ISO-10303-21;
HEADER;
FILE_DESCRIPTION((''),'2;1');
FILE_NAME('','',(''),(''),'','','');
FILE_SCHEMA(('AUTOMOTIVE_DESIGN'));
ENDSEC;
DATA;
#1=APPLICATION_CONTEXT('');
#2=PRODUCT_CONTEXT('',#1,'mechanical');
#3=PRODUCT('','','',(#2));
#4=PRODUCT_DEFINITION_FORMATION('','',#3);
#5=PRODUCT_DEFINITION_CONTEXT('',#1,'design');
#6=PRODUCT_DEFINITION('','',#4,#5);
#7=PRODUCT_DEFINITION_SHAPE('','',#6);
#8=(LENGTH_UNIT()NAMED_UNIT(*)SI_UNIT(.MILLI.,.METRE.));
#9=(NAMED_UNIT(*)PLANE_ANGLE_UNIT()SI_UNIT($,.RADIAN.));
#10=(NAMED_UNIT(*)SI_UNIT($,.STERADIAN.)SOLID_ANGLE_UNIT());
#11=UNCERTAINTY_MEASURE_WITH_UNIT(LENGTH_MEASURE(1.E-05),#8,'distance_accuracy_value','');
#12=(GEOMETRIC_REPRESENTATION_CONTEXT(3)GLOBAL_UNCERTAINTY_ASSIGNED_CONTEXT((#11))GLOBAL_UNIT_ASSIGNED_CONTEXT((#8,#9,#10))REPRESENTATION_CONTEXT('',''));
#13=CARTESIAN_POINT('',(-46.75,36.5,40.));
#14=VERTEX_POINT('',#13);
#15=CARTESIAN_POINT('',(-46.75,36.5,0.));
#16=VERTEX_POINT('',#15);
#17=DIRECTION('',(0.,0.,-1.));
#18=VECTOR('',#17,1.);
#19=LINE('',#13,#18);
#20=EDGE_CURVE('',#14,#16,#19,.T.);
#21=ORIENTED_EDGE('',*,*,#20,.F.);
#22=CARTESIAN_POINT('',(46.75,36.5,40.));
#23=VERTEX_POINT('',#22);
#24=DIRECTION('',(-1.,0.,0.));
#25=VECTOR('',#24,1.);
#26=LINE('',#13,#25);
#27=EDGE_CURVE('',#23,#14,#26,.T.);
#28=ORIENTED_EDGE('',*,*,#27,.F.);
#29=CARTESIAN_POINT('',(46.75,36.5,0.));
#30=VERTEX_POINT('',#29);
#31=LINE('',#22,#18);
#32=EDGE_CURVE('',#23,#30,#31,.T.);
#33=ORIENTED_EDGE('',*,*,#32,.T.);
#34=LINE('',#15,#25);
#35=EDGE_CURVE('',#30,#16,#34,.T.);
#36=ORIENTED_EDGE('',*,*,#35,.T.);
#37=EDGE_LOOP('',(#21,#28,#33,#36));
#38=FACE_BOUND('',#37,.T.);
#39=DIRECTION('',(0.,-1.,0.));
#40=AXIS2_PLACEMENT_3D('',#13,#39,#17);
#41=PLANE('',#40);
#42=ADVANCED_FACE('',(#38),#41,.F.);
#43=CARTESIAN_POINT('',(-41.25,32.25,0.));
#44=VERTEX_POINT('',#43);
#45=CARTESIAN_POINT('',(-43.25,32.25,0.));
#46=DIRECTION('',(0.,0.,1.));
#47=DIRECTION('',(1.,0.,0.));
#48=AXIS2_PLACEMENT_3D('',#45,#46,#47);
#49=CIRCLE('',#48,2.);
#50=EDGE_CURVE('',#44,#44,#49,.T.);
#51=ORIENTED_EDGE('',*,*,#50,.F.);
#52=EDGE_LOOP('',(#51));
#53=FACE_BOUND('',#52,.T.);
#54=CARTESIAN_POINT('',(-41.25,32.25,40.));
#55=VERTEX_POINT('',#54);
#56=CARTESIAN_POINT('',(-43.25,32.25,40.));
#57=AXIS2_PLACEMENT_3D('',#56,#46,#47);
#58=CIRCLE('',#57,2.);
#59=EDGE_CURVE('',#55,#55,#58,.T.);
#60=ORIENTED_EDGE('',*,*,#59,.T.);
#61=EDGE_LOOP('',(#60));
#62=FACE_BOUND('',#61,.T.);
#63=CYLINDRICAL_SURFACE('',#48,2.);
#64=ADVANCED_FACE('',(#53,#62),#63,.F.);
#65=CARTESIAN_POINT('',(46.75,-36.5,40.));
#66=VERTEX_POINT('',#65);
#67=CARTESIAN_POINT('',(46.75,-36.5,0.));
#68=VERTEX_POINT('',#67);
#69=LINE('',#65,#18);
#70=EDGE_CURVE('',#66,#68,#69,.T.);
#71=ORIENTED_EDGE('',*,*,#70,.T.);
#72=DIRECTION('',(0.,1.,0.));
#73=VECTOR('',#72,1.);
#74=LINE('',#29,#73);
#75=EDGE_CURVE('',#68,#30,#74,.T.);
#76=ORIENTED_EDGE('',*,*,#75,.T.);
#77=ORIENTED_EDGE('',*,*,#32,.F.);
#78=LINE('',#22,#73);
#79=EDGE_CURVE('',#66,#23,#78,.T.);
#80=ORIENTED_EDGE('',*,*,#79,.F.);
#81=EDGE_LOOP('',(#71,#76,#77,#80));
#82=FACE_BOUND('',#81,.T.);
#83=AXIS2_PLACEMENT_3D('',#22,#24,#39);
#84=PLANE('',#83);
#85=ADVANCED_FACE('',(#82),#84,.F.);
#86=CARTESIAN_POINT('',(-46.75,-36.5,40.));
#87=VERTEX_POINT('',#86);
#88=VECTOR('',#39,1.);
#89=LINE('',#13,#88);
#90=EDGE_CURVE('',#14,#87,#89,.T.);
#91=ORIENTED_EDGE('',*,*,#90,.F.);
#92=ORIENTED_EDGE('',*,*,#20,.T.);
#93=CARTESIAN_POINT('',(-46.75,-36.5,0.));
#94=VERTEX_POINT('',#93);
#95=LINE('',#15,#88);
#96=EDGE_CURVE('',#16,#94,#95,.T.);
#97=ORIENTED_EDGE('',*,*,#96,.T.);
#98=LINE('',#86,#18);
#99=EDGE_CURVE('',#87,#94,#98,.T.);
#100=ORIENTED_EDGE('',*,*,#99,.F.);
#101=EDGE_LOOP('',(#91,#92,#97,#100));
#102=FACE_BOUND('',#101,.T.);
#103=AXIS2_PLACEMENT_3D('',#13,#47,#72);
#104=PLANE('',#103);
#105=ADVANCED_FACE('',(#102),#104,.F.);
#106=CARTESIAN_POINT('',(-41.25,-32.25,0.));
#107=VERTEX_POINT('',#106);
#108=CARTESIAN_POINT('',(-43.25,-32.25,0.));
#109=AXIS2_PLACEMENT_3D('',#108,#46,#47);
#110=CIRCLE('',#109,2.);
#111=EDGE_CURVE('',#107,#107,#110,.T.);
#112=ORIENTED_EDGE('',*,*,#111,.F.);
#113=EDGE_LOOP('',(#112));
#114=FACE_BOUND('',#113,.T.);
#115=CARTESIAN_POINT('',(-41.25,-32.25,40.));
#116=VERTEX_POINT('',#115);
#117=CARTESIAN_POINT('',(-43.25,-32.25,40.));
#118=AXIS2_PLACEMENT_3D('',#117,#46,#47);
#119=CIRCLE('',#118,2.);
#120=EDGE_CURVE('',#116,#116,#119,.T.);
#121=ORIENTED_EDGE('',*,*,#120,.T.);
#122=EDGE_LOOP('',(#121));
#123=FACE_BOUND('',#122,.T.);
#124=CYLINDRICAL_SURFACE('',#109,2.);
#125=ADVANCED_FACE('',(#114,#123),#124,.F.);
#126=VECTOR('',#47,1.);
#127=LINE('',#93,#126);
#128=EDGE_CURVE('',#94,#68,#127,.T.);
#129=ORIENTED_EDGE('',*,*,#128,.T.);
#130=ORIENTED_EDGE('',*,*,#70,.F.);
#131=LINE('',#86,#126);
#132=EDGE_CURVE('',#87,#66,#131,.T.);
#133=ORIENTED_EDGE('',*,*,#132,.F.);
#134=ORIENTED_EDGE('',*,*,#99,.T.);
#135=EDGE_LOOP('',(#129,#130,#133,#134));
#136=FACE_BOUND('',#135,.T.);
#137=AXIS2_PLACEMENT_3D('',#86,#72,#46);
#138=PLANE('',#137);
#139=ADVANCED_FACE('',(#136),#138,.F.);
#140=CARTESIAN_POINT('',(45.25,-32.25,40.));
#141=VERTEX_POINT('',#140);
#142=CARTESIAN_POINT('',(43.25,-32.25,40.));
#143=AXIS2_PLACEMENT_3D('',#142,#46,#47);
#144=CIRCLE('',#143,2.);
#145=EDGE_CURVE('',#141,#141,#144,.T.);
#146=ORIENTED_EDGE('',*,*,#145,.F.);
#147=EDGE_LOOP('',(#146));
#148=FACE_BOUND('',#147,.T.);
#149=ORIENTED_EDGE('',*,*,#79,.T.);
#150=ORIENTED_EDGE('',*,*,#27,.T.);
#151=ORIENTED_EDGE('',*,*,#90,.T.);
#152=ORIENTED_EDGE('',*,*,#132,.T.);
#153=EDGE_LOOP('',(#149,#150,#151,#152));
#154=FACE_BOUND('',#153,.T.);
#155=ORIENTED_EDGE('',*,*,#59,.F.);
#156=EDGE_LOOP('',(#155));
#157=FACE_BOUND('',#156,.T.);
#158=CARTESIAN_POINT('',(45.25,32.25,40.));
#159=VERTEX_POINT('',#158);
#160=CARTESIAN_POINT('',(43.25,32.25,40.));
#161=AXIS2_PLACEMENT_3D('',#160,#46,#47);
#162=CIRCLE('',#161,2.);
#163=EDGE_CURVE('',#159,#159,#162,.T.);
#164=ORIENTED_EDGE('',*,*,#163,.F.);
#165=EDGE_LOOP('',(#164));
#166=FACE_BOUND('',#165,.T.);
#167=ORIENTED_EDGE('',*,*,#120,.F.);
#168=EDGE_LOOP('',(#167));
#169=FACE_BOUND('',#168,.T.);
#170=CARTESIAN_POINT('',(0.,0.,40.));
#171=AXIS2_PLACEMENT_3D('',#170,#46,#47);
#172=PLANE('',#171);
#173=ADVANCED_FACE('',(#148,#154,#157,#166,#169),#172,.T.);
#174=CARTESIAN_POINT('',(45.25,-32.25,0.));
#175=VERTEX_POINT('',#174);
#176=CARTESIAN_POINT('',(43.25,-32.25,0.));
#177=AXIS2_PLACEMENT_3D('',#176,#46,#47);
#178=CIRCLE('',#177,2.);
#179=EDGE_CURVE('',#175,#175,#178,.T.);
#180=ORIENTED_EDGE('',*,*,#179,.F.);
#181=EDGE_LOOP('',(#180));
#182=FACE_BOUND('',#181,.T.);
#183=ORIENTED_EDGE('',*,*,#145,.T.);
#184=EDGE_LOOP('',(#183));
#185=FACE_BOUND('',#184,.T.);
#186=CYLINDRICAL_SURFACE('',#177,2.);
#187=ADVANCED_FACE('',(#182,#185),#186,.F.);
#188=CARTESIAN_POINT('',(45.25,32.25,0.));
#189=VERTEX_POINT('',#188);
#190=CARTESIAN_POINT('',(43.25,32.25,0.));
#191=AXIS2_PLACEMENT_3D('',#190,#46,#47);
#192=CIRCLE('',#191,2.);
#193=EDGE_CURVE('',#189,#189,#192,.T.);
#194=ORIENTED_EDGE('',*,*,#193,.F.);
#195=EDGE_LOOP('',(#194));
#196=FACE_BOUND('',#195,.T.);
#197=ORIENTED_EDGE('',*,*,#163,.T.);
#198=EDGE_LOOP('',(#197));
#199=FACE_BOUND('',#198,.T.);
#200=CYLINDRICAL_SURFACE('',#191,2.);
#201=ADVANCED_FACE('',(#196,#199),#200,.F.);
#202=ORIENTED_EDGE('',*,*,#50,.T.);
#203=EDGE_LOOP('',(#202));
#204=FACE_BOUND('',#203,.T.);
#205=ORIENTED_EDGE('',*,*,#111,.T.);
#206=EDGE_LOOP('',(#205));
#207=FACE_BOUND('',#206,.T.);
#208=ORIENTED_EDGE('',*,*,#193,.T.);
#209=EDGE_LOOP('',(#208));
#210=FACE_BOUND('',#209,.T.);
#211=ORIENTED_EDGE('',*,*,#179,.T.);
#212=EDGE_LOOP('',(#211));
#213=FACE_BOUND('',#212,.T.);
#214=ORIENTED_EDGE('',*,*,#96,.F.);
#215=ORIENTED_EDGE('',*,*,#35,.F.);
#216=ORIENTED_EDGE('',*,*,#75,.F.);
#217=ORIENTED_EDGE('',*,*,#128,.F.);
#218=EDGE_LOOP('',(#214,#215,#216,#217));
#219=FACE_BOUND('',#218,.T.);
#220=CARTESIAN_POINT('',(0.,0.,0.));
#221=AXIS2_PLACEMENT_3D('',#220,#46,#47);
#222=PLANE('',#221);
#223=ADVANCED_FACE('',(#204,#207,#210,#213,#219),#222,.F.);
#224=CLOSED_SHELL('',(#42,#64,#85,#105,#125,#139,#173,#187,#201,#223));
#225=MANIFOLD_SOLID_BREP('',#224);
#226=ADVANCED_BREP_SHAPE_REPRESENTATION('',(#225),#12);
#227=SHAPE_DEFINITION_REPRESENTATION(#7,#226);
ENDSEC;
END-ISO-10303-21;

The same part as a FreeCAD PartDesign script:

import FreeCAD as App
import Part
import Sketcher

V = App.Vector


def add_polygon(sketch, points):
    """Adds a closed chain of lines whose ends are joined by coincident constraints."""
    first, n = sketch.GeometryCount, len(points)
    for a, b in zip(points, points[1:] + points[:1]):
        sketch.addGeometry(Part.LineSegment(App.Vector(*a, 0), App.Vector(*b, 0)), False)
    for i in range(n):
        sketch.addConstraint(Sketcher.Constraint("Coincident", first + i, 2, first + (i + 1) % n, 1))

doc = App.newDocument("Part")
body = doc.addObject("PartDesign::Body", "Body")

sketch1 = body.newObject("Sketcher::SketchObject", "Sketch")
sketch1.AttachmentSupport = (doc.getObject("XY_Plane"), [""])
sketch1.MapMode = "FlatFace"
add_polygon(sketch1, [(-46.75, 36.5), (-46.75, -36.5), (46.75, -36.5), (46.75, 36.5)])
sketch1.addConstraint([
    Sketcher.Constraint("Vertical", 0),
    Sketcher.Constraint("Horizontal", 1),
    Sketcher.Constraint("Vertical", 2),
    Sketcher.Constraint("Horizontal", 3),
    Sketcher.Constraint("Symmetric", 0, 2, 2, 2, -1, 1),
    Sketcher.Constraint("DistanceY", 0, 2, 0, 1, 73.0),
    Sketcher.Constraint("DistanceX", 1, 1, 1, 2, 93.5),
])
pad1 = body.newObject("PartDesign::Pad", "Pad")
pad1.Profile = sketch1
pad1.Length = 40

sketch2 = body.newObject("Sketcher::SketchObject", "Sketch001")
sketch2.AttachmentSupport = (doc.getObject("XY_Plane"), [""])
sketch2.MapMode = "FlatFace"
sketch2.AttachmentOffset = App.Placement(V(0, 0, 40), App.Rotation())
sketch2.addGeometry([
    Part.Circle(V(-43.25, 32.25, 0), V(0, 0, 1), 2),
    Part.Circle(V(43.25, 32.25, 0), V(0, 0, 1), 2),
    Part.Circle(V(43.25, -32.25, 0), V(0, 0, 1), 2),
    Part.Circle(V(-43.25, -32.25, 0), V(0, 0, 1), 2),
], False)
sketch2.addConstraint([
    Sketcher.Constraint("Equal", 0, 1),
    Sketcher.Constraint("Equal", 1, 2),
    Sketcher.Constraint("Equal", 2, 3),
    Sketcher.Constraint("Symmetric", 0, 3, 2, 3, -1, 1),
    Sketcher.Constraint("Symmetric", 1, 3, 3, 3, -1, 1),
    Sketcher.Constraint("Symmetric", 0, 3, 1, 3, -2),
    Sketcher.Constraint("Diameter", 0, 4.0),
    Sketcher.Constraint("DistanceX", 0, 3, 1, 3, 86.5),
    Sketcher.Constraint("DistanceY", 2, 3, 1, 3, 64.5),
])
pocket1 = body.newObject("PartDesign::Pocket", "Pocket")
pocket1.Profile = sketch2
pocket1.Type = "ThroughAll"

doc.recompute()
